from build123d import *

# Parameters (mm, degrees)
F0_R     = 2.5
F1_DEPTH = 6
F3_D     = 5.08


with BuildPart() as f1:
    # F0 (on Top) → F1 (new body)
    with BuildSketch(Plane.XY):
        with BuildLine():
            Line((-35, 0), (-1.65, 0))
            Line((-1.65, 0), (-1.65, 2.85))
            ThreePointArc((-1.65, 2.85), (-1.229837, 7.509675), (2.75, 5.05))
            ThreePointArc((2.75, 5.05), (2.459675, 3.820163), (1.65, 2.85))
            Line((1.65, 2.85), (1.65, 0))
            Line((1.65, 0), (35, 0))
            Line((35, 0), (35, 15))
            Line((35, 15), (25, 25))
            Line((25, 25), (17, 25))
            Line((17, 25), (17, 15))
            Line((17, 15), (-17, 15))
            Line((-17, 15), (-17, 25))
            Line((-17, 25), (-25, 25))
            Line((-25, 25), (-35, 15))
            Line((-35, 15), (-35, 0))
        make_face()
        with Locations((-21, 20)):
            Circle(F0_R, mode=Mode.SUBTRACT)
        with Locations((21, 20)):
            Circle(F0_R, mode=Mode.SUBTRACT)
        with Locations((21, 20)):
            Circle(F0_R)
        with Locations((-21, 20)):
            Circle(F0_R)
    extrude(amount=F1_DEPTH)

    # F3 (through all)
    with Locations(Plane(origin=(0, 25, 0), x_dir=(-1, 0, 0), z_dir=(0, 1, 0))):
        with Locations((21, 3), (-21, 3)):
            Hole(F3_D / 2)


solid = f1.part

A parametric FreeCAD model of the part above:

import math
import FreeCAD as App
import Part
import Sketcher
Q = App.Units.Quantity

doc = App.newDocument("Part")
body = doc.addObject("PartDesign::Body", "Body")

# Sketch on XY plane
sketch1 = body.newObject("Sketcher::SketchObject", "Sketch")
sketch1.AttachmentSupport = (doc.getObject("XY_Plane"), [""])
sketch1.MapMode = "FlatFace"
sketch1.addGeometry([
    Part.LineSegment(App.Vector(-35, 0, 0), App.Vector(-1.65, 0, 0)),  # 0
    Part.LineSegment(App.Vector(-1.65, 0, 0), App.Vector(-1.65, 2.85, 0)),  # 1
    Part.ArcOfCircle(Part.Circle(App.Vector(0, 5.05, 0), App.Vector(0, 0, 1), 2.75), math.radians(0), math.radians(233.130103)),  # 2
    Part.ArcOfCircle(Part.Circle(App.Vector(0, 5.05, 0), App.Vector(0, 0, 1), 2.75), math.radians(-53.130105), math.radians(0.000002)),  # 3
    Part.LineSegment(App.Vector(1.65, 2.85, 0), App.Vector(1.65, 0, 0)),  # 4
    Part.LineSegment(App.Vector(1.65, 0, 0), App.Vector(35, 0, 0)),  # 5
    Part.LineSegment(App.Vector(35, 0, 0), App.Vector(35, 15, 0)),  # 6
    Part.LineSegment(App.Vector(35, 15, 0), App.Vector(25, 25, 0)),  # 7
    Part.LineSegment(App.Vector(25, 25, 0), App.Vector(17, 25, 0)),  # 8
    Part.LineSegment(App.Vector(17, 25, 0), App.Vector(17, 15, 0)),  # 9
    Part.LineSegment(App.Vector(17, 15, 0), App.Vector(-17, 15, 0)),  # 10
    Part.LineSegment(App.Vector(-17, 15, 0), App.Vector(-17, 25, 0)),  # 11
    Part.LineSegment(App.Vector(-17, 25, 0), App.Vector(-25, 25, 0)),  # 12
    Part.LineSegment(App.Vector(-25, 25, 0), App.Vector(-35, 15, 0)),  # 13
    Part.LineSegment(App.Vector(-35, 15, 0), App.Vector(-35, 0, 0)),  # 14
], False)
sketch1.addConstraint([
    Sketcher.Constraint("Coincident", 0, 2, 1, 1),
    Sketcher.Constraint("Coincident", 1, 2, 2, 2),
    Sketcher.Constraint("Tangent", 2, 1, 3, 2),
    Sketcher.Constraint("Coincident", 3, 1, 4, 1),
    Sketcher.Constraint("Coincident", 4, 2, 5, 1),
    Sketcher.Constraint("Coincident", 5, 2, 6, 1),
    Sketcher.Constraint("Coincident", 6, 2, 7, 1),
    Sketcher.Constraint("Coincident", 7, 2, 8, 1),
    Sketcher.Constraint("Coincident", 8, 2, 9, 1),
    Sketcher.Constraint("Coincident", 9, 2, 10, 1),
    Sketcher.Constraint("Coincident", 10, 2, 11, 1),
    Sketcher.Constraint("Coincident", 11, 2, 12, 1),
    Sketcher.Constraint("Coincident", 12, 2, 13, 1),
    Sketcher.Constraint("Coincident", 13, 2, 14, 1),
    Sketcher.Constraint("Coincident", 14, 2, 0, 1),
    Sketcher.Constraint("Horizontal", 0),
    Sketcher.Constraint("Vertical", 1),
    Sketcher.Constraint("Vertical", 4),
    Sketcher.Constraint("Horizontal", 5),
    Sketcher.Constraint("Vertical", 6),
    Sketcher.Constraint("Horizontal", 8),
    Sketcher.Constraint("Vertical", 9),
    Sketcher.Constraint("Horizontal", 10),
    Sketcher.Constraint("Vertical", 11),
    Sketcher.Constraint("Horizontal", 12),
    Sketcher.Constraint("Vertical", 14),
    Sketcher.Constraint("Equal", 2, 3),
    Sketcher.Constraint("Symmetric", 0, 2, 4, 2, -1, 1),
    Sketcher.Constraint("Symmetric", 8, 2, 11, 2, -2),
    Sketcher.Constraint("Symmetric", 6, 2, 13, 2, -2),
    Sketcher.Constraint("PointOnObject", 2, 3, -2),
    Sketcher.Constraint("PointOnObject", 0, 2, -1),
    Sketcher.Constraint("Perpendicular", 7, 13),
    Sketcher.Constraint("Horizontal", 3, 3, 2, 1),
    Sketcher.Constraint("Horizontal", 6, 2, 9, 2),
    Sketcher.Constraint("Equal", 8, 12),
    Sketcher.Constraint("DistanceX", 8, 2, 8, 1, Q("8 mm")),
    Sketcher.Constraint("DistanceX", 10, 2, 10, 1, Q("34 mm")),
    Sketcher.Constraint("DistanceY", 6, 1, 6, 2, Q("15 mm")),
    Sketcher.Constraint("DistanceY", 9, 2, 9, 1, Q("10 mm")),
    Sketcher.Constraint("Radius", 2, Q("2.75 mm")),
    Sketcher.Constraint("DistanceX", 0, 1, 0, 2, Q("33.35 mm")),
    Sketcher.Constraint("DistanceY", 1, 1, 1, 2, Q("2.85 mm")),
])
pad1 = body.newObject("PartDesign::Pad", "Pad")
pad1.Profile = sketch1
pad1.Length = 6

# Sketch on XZ plane
sketch2 = body.newObject("Sketcher::SketchObject", "Sketch001")
sketch2.AttachmentSupport = (doc.getObject("XZ_Plane"), [""])
sketch2.MapMode = "FlatFace"
sketch2.AttachmentOffset = App.Placement(App.Vector(0, 0, -25), App.Rotation())
sketch2.addGeometry([
    Part.Circle(App.Vector(-21, 3, 0), App.Vector(0, 0, 1), 2.54),
    Part.Circle(App.Vector(21, 3, 0), App.Vector(0, 0, 1), 2.54),
], False)
sketch2.addConstraint([
    Sketcher.Constraint("Equal", 0, 1),
    Sketcher.Constraint("Symmetric", 0, 3, 1, 3, -2),
    Sketcher.Constraint("Diameter", 0, Q("5.08 mm")),
    Sketcher.Constraint("DistanceX", 0, 3, -1, 1, Q("21 mm")),
    Sketcher.Constraint("DistanceY", -1, 1, 0, 3, Q("3 mm")),
])
doc.recompute()
hole = body.newObject("PartDesign::Hole", "Hole")
hole.Profile = sketch2
hole.ThreadType = "None"
hole.Diameter = 5.08
hole.DepthType = "ThroughAll"
hole.Reversed = True

doc.recompute()
